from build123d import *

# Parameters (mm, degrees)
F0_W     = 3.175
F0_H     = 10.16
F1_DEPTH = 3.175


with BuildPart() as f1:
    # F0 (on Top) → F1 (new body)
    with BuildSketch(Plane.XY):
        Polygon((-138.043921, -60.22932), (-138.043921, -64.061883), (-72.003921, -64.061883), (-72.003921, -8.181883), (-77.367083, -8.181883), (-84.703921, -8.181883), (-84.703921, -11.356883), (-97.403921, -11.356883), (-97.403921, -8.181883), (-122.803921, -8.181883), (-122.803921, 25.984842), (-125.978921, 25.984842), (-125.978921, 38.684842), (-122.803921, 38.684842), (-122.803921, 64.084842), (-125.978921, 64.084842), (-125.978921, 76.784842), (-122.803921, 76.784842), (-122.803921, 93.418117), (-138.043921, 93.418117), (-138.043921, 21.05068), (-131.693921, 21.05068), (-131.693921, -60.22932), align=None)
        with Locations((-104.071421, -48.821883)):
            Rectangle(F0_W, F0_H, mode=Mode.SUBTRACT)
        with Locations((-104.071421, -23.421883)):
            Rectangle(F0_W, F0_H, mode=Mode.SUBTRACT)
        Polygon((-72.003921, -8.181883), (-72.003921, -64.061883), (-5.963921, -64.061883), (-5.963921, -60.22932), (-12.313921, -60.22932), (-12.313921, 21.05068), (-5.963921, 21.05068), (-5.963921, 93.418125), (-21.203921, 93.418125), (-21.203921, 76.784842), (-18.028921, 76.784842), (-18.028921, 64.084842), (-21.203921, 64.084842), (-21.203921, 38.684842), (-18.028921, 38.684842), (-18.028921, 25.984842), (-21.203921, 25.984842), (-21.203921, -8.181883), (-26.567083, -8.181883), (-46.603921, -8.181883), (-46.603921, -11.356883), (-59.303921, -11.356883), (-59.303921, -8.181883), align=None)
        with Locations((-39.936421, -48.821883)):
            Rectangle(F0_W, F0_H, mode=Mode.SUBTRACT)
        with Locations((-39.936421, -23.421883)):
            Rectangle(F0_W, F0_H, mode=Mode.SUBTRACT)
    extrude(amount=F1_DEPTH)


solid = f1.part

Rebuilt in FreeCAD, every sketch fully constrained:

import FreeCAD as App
import Part
import Sketcher
from FreeCAD import Vector
Q = App.Units.Quantity

doc = App.newDocument("Part")
body = doc.addObject("PartDesign::Body", "Body")

sketch1 = body.newObject("Sketcher::SketchObject", "Sketch")
sketch1.AttachmentSupport = (doc.getObject("XY_Plane"), [""])
sketch1.MapMode = "FlatFace"
sketch1.addGeometry([
    Part.LineSegment(Vector(-138, -60.2, 0), Vector(-138, -64.1, 0)),
    Part.LineSegment(Vector(-138, -64.1, 0), Vector(-6, -64.1, 0)),
    Part.LineSegment(Vector(-6, -64.1, 0), Vector(-6, -60.2, 0)),
    Part.LineSegment(Vector(-6, -60.2, 0), Vector(-12.3, -60.2, 0)),
    Part.LineSegment(Vector(-12.3, -60.2, 0), Vector(-12.3, 21.1, 0)),
    Part.LineSegment(Vector(-12.3, 21.1, 0), Vector(-6, 21.1, 0)),
    Part.LineSegment(Vector(-6, 21.1, 0), Vector(-6, 93.4, 0)),
    Part.LineSegment(Vector(-6, 93.4, 0), Vector(-21.2, 93.4, 0)),
    Part.LineSegment(Vector(-21.2, 93.4, 0), Vector(-21.2, 76.8, 0)),
    Part.LineSegment(Vector(-21.2, 76.8, 0), Vector(-18, 76.8, 0)),
    Part.LineSegment(Vector(-18, 76.8, 0), Vector(-18, 64.1, 0)),
    Part.LineSegment(Vector(-18, 64.1, 0), Vector(-21.2, 64.1, 0)),
    Part.LineSegment(Vector(-21.2, 64.1, 0), Vector(-21.2, 38.7, 0)),
    Part.LineSegment(Vector(-21.2, 38.7, 0), Vector(-18, 38.7, 0)),
    Part.LineSegment(Vector(-18, 38.7, 0), Vector(-18, 26, 0)),
    Part.LineSegment(Vector(-18, 26, 0), Vector(-21.2, 26, 0)),
    Part.LineSegment(Vector(-21.2, 26, 0), Vector(-21.2, -8.2, 0)),
    Part.LineSegment(Vector(-21.2, -8.2, 0), Vector(-46.6, -8.2, 0)),
    Part.LineSegment(Vector(-46.6, -8.2, 0), Vector(-46.6, -11.4, 0)),
    Part.LineSegment(Vector(-46.6, -11.4, 0), Vector(-59.3, -11.4, 0)),
    Part.LineSegment(Vector(-59.3, -11.4, 0), Vector(-59.3, -8.2, 0)),
    Part.LineSegment(Vector(-59.3, -8.2, 0), Vector(-84.7, -8.2, 0)),
    Part.LineSegment(Vector(-84.7, -8.2, 0), Vector(-84.7, -11.4, 0)),
    Part.LineSegment(Vector(-84.7, -11.4, 0), Vector(-97.4, -11.4, 0)),
    Part.LineSegment(Vector(-97.4, -11.4, 0), Vector(-97.4, -8.2, 0)),
    Part.LineSegment(Vector(-97.4, -8.2, 0), Vector(-122.8, -8.2, 0)),
    Part.LineSegment(Vector(-122.8, -8.2, 0), Vector(-122.8, 26, 0)),
    Part.LineSegment(Vector(-122.8, 26, 0), Vector(-126, 26, 0)),
    Part.LineSegment(Vector(-126, 26, 0), Vector(-126, 38.7, 0)),
    Part.LineSegment(Vector(-126, 38.7, 0), Vector(-122.8, 38.7, 0)),
    Part.LineSegment(Vector(-122.8, 38.7, 0), Vector(-122.8, 64.1, 0)),
    Part.LineSegment(Vector(-122.8, 64.1, 0), Vector(-126, 64.1, 0)),
    Part.LineSegment(Vector(-126, 64.1, 0), Vector(-126, 76.8, 0)),
    Part.LineSegment(Vector(-126, 76.8, 0), Vector(-122.8, 76.8, 0)),
    Part.LineSegment(Vector(-122.8, 76.8, 0), Vector(-122.8, 93.4, 0)),
    Part.LineSegment(Vector(-122.8, 93.4, 0), Vector(-138, 93.4, 0)),
    Part.LineSegment(Vector(-138, 93.4, 0), Vector(-138, 21.1, 0)),
    Part.LineSegment(Vector(-138, 21.1, 0), Vector(-131.7, 21.1, 0)),
    Part.LineSegment(Vector(-131.7, 21.1, 0), Vector(-131.7, -60.2, 0)),
    Part.LineSegment(Vector(-131.7, -60.2, 0), Vector(-138, -60.2, 0)),
    Part.LineSegment(Vector(-102.5, -53.9, 0), Vector(-105.7, -53.9, 0)),
    Part.LineSegment(Vector(-105.7, -53.9, 0), Vector(-105.7, -43.7, 0)),
    Part.LineSegment(Vector(-105.7, -43.7, 0), Vector(-102.5, -43.7, 0)),
    Part.LineSegment(Vector(-102.5, -43.7, 0), Vector(-102.5, -53.9, 0)),
    Part.LineSegment(Vector(-38.3, -53.9, 0), Vector(-41.5, -53.9, 0)),
    Part.LineSegment(Vector(-41.5, -53.9, 0), Vector(-41.5, -43.7, 0)),
    Part.LineSegment(Vector(-41.5, -43.7, 0), Vector(-38.3, -43.7, 0)),
    Part.LineSegment(Vector(-38.3, -43.7, 0), Vector(-38.3, -53.9, 0)),
    Part.LineSegment(Vector(-102.5, -28.5, 0), Vector(-105.7, -28.5, 0)),
    Part.LineSegment(Vector(-105.7, -28.5, 0), Vector(-105.7, -18.3, 0)),
    Part.LineSegment(Vector(-105.7, -18.3, 0), Vector(-102.5, -18.3, 0)),
    Part.LineSegment(Vector(-102.5, -18.3, 0), Vector(-102.5, -28.5, 0)),
    Part.LineSegment(Vector(-38.3, -28.5, 0), Vector(-41.5, -28.5, 0)),
    Part.LineSegment(Vector(-41.5, -28.5, 0), Vector(-41.5, -18.3, 0)),
    Part.LineSegment(Vector(-41.5, -18.3, 0), Vector(-38.3, -18.3, 0)),
    Part.LineSegment(Vector(-38.3, -18.3, 0), Vector(-38.3, -28.5, 0)),
], False)
sketch1.addConstraint([
    Sketcher.Constraint("Coincident", 0, 2, 1, 1),
    Sketcher.Constraint("Coincident", 1, 2, 2, 1),
    Sketcher.Constraint("Coincident", 2, 2, 3, 1),
    Sketcher.Constraint("Coincident", 3, 2, 4, 1),
    Sketcher.Constraint("Coincident", 4, 2, 5, 1),
    Sketcher.Constraint("Coincident", 5, 2, 6, 1),
    Sketcher.Constraint("Coincident", 6, 2, 7, 1),
    Sketcher.Constraint("Coincident", 7, 2, 8, 1),
    Sketcher.Constraint("Coincident", 8, 2, 9, 1),
    Sketcher.Constraint("Coincident", 9, 2, 10, 1),
    Sketcher.Constraint("Coincident", 10, 2, 11, 1),
    Sketcher.Constraint("Coincident", 11, 2, 12, 1),
    Sketcher.Constraint("Coincident", 12, 2, 13, 1),
    Sketcher.Constraint("Coincident", 13, 2, 14, 1),
    Sketcher.Constraint("Coincident", 14, 2, 15, 1),
    Sketcher.Constraint("Coincident", 15, 2, 16, 1),
    Sketcher.Constraint("Coincident", 16, 2, 17, 1),
    Sketcher.Constraint("Coincident", 17, 2, 18, 1),
    Sketcher.Constraint("Coincident", 18, 2, 19, 1),
    Sketcher.Constraint("Coincident", 19, 2, 20, 1),
    Sketcher.Constraint("Coincident", 20, 2, 21, 1),
    Sketcher.Constraint("Coincident", 21, 2, 22, 1),
    Sketcher.Constraint("Coincident", 22, 2, 23, 1),
    Sketcher.Constraint("Coincident", 23, 2, 24, 1),
    Sketcher.Constraint("Coincident", 24, 2, 25, 1),
    Sketcher.Constraint("Coincident", 25, 2, 26, 1),
    Sketcher.Constraint("Coincident", 26, 2, 27, 1),
    Sketcher.Constraint("Coincident", 27, 2, 28, 1),
    Sketcher.Constraint("Coincident", 28, 2, 29, 1),
    Sketcher.Constraint("Coincident", 29, 2, 30, 1),
    Sketcher.Constraint("Coincident", 30, 2, 31, 1),
    Sketcher.Constraint("Coincident", 31, 2, 32, 1),
    Sketcher.Constraint("Coincident", 32, 2, 33, 1),
    Sketcher.Constraint("Coincident", 33, 2, 34, 1),
    Sketcher.Constraint("Coincident", 34, 2, 35, 1),
    Sketcher.Constraint("Coincident", 35, 2, 36, 1),
    Sketcher.Constraint("Coincident", 36, 2, 37, 1),
    Sketcher.Constraint("Coincident", 37, 2, 38, 1),
    Sketcher.Constraint("Coincident", 38, 2, 39, 1),
    Sketcher.Constraint("Coincident", 39, 2, 0, 1),
    Sketcher.Constraint("Coincident", 40, 2, 41, 1),
    Sketcher.Constraint("Coincident", 41, 2, 42, 1),
    Sketcher.Constraint("Coincident", 42, 2, 43, 1),
    Sketcher.Constraint("Coincident", 43, 2, 40, 1),
    Sketcher.Constraint("Coincident", 44, 2, 45, 1),
    Sketcher.Constraint("Coincident", 45, 2, 46, 1),
    Sketcher.Constraint("Coincident", 46, 2, 47, 1),
    Sketcher.Constraint("Coincident", 47, 2, 44, 1),
    Sketcher.Constraint("Coincident", 48, 2, 49, 1),
    Sketcher.Constraint("Coincident", 49, 2, 50, 1),
    Sketcher.Constraint("Coincident", 50, 2, 51, 1),
    Sketcher.Constraint("Coincident", 51, 2, 48, 1),
    Sketcher.Constraint("Coincident", 52, 2, 53, 1),
    Sketcher.Constraint("Coincident", 53, 2, 54, 1),
    Sketcher.Constraint("Coincident", 54, 2, 55, 1),
    Sketcher.Constraint("Coincident", 55, 2, 52, 1),
    Sketcher.Constraint("Vertical", 0),
    Sketcher.Constraint("Horizontal", 1),
    Sketcher.Constraint("Vertical", 2),
    Sketcher.Constraint("Horizontal", 3),
    Sketcher.Constraint("Vertical", 4),
    Sketcher.Constraint("Horizontal", 5),
    Sketcher.Constraint("Vertical", 6),
    Sketcher.Constraint("Horizontal", 7),
    Sketcher.Constraint("Vertical", 8),
    Sketcher.Constraint("Horizontal", 9),
    Sketcher.Constraint("Vertical", 10),
    Sketcher.Constraint("Horizontal", 11),
    Sketcher.Constraint("Vertical", 12),
    Sketcher.Constraint("Horizontal", 13),
    Sketcher.Constraint("Vertical", 14),
    Sketcher.Constraint("Horizontal", 15),
    Sketcher.Constraint("Vertical", 16),
    Sketcher.Constraint("Horizontal", 17),
    Sketcher.Constraint("Vertical", 18),
    Sketcher.Constraint("Horizontal", 19),
    Sketcher.Constraint("Vertical", 20),
    Sketcher.Constraint("Horizontal", 21),
    Sketcher.Constraint("Vertical", 22),
    Sketcher.Constraint("Horizontal", 23),
    Sketcher.Constraint("Vertical", 24),
    Sketcher.Constraint("Horizontal", 25),
    Sketcher.Constraint("Vertical", 26),
    Sketcher.Constraint("Horizontal", 27),
    Sketcher.Constraint("Vertical", 28),
    Sketcher.Constraint("Horizontal", 29),
    Sketcher.Constraint("Vertical", 30),
    Sketcher.Constraint("Horizontal", 31),
    Sketcher.Constraint("Vertical", 32),
    Sketcher.Constraint("Horizontal", 33),
    Sketcher.Constraint("Vertical", 34),
    Sketcher.Constraint("Horizontal", 35),
    Sketcher.Constraint("Vertical", 36),
    Sketcher.Constraint("Horizontal", 37),
    Sketcher.Constraint("Vertical", 38),
    Sketcher.Constraint("Horizontal", 39),
    Sketcher.Constraint("Horizontal", 40),
    Sketcher.Constraint("Vertical", 41),
    Sketcher.Constraint("Horizontal", 42),
    Sketcher.Constraint("Vertical", 43),
    Sketcher.Constraint("Horizontal", 44),
    Sketcher.Constraint("Vertical", 45),
    Sketcher.Constraint("Horizontal", 46),
    Sketcher.Constraint("Vertical", 47),
    Sketcher.Constraint("Horizontal", 48),
    Sketcher.Constraint("Vertical", 49),
    Sketcher.Constraint("Horizontal", 50),
    Sketcher.Constraint("Vertical", 51),
    Sketcher.Constraint("Horizontal", 52),
    Sketcher.Constraint("Vertical", 53),
    Sketcher.Constraint("Horizontal", 54),
    Sketcher.Constraint("Vertical", 55),
    Sketcher.Constraint("Horizontal", 17, 2, 20, 2),
    Sketcher.Constraint("Horizontal", 19, 2, 22, 2),
    Sketcher.Constraint("Horizontal", 21, 2, 24, 2),
    Sketcher.Constraint("Horizontal", 15, 2, 26, 2),
    Sketcher.Constraint("Horizontal", 13, 2, 28, 2),
    Sketcher.Constraint("Horizontal", 11, 2, 30, 2),
    Sketcher.Constraint("Horizontal", 9, 2, 32, 2),
    Sketcher.Constraint("Horizontal", 5, 2, 36, 2),
    Sketcher.Constraint("Horizontal", 3, 2, 38, 2),
    Sketcher.Constraint("Horizontal", 43, 2, 44, 2),
    Sketcher.Constraint("Horizontal", 42, 2, 45, 2),
    Sketcher.Constraint("Horizontal", 51, 2, 52, 2),
    Sketcher.Constraint("Horizontal", 50, 2, 53, 2),
    Sketcher.Constraint("Vertical", 2, 2, 5, 2),
    Sketcher.Constraint("Vertical", 8, 2, 11, 2),
    Sketcher.Constraint("Vertical", 10, 2, 13, 2),
    Sketcher.Constraint("Vertical", 12, 2, 15, 2),
    Sketcher.Constraint("Vertical", 26, 2, 29, 2),
    Sketcher.Constraint("Vertical", 28, 2, 31, 2),
    Sketcher.Constraint("Vertical", 30, 2, 33, 2),
    Sketcher.Constraint("Vertical", 0, 2, 35, 2),
    Sketcher.Constraint("Vertical", 41, 2, 48, 2),
    Sketcher.Constraint("Vertical", 43, 2, 50, 2),
    Sketcher.Constraint("Vertical", 45, 2, 52, 2),
    Sketcher.Constraint("Vertical", 47, 2, 54, 2),
    Sketcher.Constraint("Equal", 17, 21),
    Sketcher.Constraint("Equal", 19, 23),
    Sketcher.Constraint("Equal", 21, 25),
    Sketcher.Constraint("Equal", 15, 27),
    Sketcher.Constraint("Equal", 7, 35),
    Sketcher.Constraint("Equal", 5, 37),
    Sketcher.Constraint("Equal", 33, 40),
    Sketcher.Constraint("Equal", 42, 44),
    Sketcher.Constraint("Equal", 23, 10),
    Sketcher.Constraint("Equal", 25, 12),
    Sketcher.Constraint("Equal", 10, 14),
    Sketcher.Constraint("Equal", 54, 18),
    Sketcher.Constraint("Equal", 47, 49),
    Sketcher.Constraint("DistanceX", 17, 2, 17, 1, Q("1 in")),
    Sketcher.Constraint("DistanceX", 1, 1, 1, 2, Q("5.2 in")),
    Sketcher.Constraint("DistanceX", 7, 2, 7, 1, Q("0.6 in")),
    Sketcher.Constraint("DistanceY", 4, 1, 4, 2, Q("3.2 in")),
    Sketcher.Constraint("DistanceY", 41, 1, 41, 2, Q("0.4 in")),
    Sketcher.Constraint("DistanceY", 40, 2, 48, 2, Q("1 in")),
    Sketcher.Constraint("DistanceX", 3, 2, 3, 1, Q("0.25 in")),
    Sketcher.Constraint("DistanceY", 0, 2, 25, 2, Q("2.2 in")),
    Sketcher.Constraint("DistanceY", 0, 2, 40, 2, Q("0.4 in")),
    Sketcher.Constraint("DistanceX", 42, 2, 23, 2, Q("0.2 in")),
    Sketcher.Constraint("DistanceX", 44, 2, 2, 2, Q("1.4 in")),
    Sketcher.Constraint("DistanceX", 9, 1, 9, 2, Q("0.125 in")),
    Sketcher.Constraint("DistanceX", 0, 2, -1, 1, Q("5.4348 in")),
    Sketcher.Constraint("DistanceY", 0, 2, 0, 1, 3.832563),
    Sketcher.Constraint("DistanceY", 6, 1, 6, 2, 72.367445),
    Sketcher.Constraint("DistanceY", 8, 2, 8, 1, 16.633283),
    Sketcher.Constraint("DistanceY", 34, 1, 34, 2, 16.633275),
    Sketcher.Constraint("DistanceY", 2, 2, -1, 1, 60.22932),
])
pad1 = body.newObject("PartDesign::Pad", "Pad")
pad1.Profile = sketch1
pad1.Length = Q("0.125 in")

doc.recompute()
